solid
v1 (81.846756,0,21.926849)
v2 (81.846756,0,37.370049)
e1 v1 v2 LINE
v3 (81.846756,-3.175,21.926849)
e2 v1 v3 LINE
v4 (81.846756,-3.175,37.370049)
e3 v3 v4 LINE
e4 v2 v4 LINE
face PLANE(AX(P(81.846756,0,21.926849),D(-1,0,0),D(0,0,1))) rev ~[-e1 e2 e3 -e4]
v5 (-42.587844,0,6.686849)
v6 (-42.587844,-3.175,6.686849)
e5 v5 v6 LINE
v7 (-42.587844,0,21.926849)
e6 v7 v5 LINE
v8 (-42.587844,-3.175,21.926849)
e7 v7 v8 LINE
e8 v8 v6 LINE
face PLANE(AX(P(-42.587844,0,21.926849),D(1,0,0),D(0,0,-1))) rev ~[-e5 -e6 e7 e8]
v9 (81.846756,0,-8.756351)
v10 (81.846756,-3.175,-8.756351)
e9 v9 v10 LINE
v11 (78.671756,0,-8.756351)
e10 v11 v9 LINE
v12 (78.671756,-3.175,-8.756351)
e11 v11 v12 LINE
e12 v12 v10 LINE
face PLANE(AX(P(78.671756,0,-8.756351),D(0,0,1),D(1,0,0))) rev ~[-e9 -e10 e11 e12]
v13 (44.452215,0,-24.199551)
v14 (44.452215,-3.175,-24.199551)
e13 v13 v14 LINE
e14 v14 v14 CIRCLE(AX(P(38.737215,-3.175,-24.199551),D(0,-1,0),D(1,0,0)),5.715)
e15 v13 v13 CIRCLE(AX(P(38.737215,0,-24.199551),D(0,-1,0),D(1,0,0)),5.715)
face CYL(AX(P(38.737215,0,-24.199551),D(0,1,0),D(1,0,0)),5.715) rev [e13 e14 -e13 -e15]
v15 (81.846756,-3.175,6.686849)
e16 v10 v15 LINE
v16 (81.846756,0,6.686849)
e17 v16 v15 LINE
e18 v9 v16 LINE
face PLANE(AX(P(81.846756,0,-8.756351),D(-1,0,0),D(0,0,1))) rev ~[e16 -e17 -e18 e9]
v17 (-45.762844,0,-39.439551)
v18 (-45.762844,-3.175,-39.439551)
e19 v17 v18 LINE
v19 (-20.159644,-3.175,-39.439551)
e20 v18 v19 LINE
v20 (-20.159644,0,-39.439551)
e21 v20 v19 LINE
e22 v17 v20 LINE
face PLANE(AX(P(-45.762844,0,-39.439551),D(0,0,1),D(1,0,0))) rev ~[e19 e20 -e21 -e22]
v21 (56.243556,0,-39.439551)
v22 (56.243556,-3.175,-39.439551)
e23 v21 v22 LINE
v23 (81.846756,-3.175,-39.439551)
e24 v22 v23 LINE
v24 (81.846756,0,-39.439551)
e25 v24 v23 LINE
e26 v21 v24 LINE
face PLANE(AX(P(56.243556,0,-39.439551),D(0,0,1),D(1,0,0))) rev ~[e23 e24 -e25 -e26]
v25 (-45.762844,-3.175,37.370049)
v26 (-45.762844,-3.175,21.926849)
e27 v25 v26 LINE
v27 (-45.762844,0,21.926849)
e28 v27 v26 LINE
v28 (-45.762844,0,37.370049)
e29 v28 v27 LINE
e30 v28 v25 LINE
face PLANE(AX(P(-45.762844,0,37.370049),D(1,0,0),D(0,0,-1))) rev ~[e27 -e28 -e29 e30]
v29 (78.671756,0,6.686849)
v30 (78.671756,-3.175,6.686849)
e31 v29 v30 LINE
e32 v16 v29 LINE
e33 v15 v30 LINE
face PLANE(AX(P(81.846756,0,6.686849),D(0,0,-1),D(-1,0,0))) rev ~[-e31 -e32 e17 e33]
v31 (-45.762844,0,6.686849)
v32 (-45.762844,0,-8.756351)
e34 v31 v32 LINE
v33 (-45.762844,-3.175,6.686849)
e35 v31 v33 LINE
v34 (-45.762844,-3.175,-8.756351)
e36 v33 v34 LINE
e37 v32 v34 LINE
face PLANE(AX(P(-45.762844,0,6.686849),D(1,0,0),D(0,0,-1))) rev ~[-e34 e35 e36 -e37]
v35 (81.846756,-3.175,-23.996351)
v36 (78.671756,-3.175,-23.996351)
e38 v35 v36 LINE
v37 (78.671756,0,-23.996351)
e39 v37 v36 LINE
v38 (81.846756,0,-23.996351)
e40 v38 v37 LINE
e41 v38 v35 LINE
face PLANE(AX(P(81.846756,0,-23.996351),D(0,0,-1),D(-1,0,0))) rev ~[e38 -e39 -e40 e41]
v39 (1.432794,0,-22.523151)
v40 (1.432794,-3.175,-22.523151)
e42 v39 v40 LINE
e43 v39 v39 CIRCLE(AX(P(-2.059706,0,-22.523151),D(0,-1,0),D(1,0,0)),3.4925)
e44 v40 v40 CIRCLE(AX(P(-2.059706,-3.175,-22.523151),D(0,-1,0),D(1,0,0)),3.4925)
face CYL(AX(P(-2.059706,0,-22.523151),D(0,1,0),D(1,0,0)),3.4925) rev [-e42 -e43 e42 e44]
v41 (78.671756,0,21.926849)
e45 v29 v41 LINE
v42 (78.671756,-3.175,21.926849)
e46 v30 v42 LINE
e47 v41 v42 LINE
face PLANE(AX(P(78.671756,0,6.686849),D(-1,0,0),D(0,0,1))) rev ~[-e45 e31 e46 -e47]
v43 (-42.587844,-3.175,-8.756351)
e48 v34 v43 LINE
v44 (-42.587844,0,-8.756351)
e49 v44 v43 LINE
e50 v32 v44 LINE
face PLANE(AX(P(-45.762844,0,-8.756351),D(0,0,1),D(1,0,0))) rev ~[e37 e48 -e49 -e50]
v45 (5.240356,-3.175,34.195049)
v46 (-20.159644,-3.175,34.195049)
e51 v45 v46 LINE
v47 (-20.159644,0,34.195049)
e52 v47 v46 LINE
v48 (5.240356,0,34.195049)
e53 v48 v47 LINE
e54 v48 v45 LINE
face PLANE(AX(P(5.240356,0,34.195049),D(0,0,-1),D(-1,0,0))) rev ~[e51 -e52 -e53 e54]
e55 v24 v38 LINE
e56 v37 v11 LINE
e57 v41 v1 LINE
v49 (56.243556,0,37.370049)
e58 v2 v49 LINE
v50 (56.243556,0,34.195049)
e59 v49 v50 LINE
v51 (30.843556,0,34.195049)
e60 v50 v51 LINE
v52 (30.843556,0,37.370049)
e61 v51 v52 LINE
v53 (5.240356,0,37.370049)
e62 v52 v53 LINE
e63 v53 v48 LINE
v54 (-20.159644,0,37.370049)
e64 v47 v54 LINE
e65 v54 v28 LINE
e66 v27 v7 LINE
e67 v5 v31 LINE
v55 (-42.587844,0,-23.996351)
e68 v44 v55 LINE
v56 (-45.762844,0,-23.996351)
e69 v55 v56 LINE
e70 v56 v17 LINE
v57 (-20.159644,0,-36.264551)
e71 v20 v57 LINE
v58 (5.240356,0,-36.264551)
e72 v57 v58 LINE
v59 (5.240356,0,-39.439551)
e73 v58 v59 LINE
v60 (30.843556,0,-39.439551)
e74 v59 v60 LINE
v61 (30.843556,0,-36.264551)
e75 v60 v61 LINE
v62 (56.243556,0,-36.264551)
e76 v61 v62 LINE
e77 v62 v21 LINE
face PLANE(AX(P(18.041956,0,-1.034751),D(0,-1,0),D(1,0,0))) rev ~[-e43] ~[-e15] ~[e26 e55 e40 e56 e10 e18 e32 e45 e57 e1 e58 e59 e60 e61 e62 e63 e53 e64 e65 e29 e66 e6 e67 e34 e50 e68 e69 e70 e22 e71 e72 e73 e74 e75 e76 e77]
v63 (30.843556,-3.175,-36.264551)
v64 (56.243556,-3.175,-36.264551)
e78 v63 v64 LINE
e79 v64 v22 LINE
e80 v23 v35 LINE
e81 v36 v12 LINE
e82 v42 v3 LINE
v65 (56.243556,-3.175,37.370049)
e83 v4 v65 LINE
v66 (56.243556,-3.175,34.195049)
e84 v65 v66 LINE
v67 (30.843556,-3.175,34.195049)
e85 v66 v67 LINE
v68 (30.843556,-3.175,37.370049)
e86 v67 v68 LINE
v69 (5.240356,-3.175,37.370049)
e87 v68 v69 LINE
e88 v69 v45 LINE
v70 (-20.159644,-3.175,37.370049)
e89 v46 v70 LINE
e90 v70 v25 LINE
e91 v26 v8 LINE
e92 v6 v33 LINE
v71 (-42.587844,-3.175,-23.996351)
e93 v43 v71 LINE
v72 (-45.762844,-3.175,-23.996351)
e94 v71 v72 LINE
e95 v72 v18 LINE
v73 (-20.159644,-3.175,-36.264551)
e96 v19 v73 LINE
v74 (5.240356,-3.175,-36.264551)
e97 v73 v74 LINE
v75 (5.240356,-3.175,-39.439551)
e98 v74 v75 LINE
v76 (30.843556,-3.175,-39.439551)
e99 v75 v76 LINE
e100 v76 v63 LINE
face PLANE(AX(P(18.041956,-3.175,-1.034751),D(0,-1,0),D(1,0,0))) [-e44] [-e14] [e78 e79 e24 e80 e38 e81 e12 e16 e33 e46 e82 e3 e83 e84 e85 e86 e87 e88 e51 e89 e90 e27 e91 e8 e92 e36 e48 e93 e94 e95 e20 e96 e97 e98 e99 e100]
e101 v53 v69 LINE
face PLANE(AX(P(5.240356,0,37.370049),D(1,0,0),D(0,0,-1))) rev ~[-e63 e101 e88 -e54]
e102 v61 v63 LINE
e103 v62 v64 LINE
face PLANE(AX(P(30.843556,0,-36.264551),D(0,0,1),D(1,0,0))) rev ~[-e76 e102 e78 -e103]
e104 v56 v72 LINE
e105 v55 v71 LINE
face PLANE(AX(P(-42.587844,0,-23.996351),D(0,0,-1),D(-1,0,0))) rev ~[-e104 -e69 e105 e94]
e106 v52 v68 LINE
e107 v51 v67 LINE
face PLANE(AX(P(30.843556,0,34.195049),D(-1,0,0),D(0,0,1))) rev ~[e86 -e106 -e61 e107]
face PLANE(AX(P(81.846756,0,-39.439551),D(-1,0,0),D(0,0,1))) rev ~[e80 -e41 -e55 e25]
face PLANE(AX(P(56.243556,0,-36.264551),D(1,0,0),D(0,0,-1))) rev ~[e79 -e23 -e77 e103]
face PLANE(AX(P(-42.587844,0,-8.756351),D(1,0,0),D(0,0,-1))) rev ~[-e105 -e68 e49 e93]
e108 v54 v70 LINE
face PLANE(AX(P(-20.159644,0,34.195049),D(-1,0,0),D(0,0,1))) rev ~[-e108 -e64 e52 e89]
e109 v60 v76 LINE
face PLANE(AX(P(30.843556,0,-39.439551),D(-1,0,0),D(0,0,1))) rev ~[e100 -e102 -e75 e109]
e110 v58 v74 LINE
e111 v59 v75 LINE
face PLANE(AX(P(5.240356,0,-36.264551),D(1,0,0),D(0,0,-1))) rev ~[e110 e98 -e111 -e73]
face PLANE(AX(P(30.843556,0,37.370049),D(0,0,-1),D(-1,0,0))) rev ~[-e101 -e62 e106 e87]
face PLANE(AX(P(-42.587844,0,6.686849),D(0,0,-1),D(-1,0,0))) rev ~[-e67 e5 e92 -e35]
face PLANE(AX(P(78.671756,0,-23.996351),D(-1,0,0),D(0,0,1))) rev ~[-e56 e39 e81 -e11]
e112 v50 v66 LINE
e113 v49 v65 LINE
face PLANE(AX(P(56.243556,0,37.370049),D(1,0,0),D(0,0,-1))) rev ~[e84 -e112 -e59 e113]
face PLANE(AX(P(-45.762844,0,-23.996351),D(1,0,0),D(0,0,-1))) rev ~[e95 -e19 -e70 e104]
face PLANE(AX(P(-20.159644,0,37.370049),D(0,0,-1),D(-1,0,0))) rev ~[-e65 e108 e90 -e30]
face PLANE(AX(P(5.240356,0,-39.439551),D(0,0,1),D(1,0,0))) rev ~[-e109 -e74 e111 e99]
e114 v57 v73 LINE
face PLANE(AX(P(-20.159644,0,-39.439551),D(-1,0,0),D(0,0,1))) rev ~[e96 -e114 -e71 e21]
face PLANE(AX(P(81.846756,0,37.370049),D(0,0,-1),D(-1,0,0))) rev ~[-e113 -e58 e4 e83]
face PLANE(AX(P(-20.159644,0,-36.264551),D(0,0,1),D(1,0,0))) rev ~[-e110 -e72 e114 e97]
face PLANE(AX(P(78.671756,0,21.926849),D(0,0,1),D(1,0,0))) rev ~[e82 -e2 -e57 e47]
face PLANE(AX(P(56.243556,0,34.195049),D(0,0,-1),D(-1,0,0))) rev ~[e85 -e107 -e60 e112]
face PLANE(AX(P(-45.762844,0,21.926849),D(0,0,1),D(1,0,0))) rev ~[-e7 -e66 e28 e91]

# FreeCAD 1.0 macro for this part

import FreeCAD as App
import Part
import Sketcher
Q = App.Units.Quantity

doc = App.newDocument("Part")
body = doc.addObject("PartDesign::Body", "Body")

# Sketch on XZ plane
sketch1 = body.newObject("Sketcher::SketchObject", "Sketch")
sketch1.AttachmentSupport = (doc.getObject("XZ_Plane"), [""])
sketch1.MapMode = "FlatFace"
sketch1.addGeometry([
    Part.LineSegment(App.Vector(-20.2, 37.4, 0), App.Vector(-45.8, 37.4, 0)),  # 0
    Part.LineSegment(App.Vector(-45.8, 37.4, 0), App.Vector(-45.8, 21.9, 0)),  # 1
    Part.LineSegment(App.Vector(-45.8, 21.9, 0), App.Vector(-42.6, 21.9, 0)),  # 2
    Part.LineSegment(App.Vector(-42.6, 21.9, 0), App.Vector(-42.6, 6.7, 0)),  # 3
    Part.LineSegment(App.Vector(-42.6, 6.7, 0), App.Vector(-45.8, 6.7, 0)),  # 4
    Part.LineSegment(App.Vector(-45.8, 6.7, 0), App.Vector(-45.8, -8.8, 0)),  # 5
    Part.LineSegment(App.Vector(-45.8, -8.8, 0), App.Vector(-42.6, -8.8, 0)),  # 6
    Part.LineSegment(App.Vector(-42.6, -8.8, 0), App.Vector(-42.6, -24, 0)),  # 7
    Part.LineSegment(App.Vector(-42.6, -24, 0), App.Vector(-45.8, -24, 0)),  # 8
    Part.LineSegment(App.Vector(-45.8, -24, 0), App.Vector(-45.8, -39.4, 0)),  # 9
    Part.LineSegment(App.Vector(-45.8, -39.4, 0), App.Vector(-20.2, -39.4, 0)),  # 10
    Part.LineSegment(App.Vector(-20.2, -39.4, 0), App.Vector(-20.2, -36.3, 0)),  # 11
    Part.LineSegment(App.Vector(-20.2, -36.3, 0), App.Vector(5.2, -36.3, 0)),  # 12
    Part.LineSegment(App.Vector(5.2, -36.3, 0), App.Vector(5.2, -39.4, 0)),  # 13
    Part.LineSegment(App.Vector(5.2, -39.4, 0), App.Vector(30.8, -39.4, 0)),  # 14
    Part.LineSegment(App.Vector(30.8, -39.4, 0), App.Vector(30.8, -36.3, 0)),  # 15
    Part.LineSegment(App.Vector(30.8, -36.3, 0), App.Vector(56.2, -36.3, 0)),  # 16
    Part.LineSegment(App.Vector(56.2, -36.3, 0), App.Vector(56.2, -39.4, 0)),  # 17
    Part.LineSegment(App.Vector(56.2, -39.4, 0), App.Vector(81.8, -39.4, 0)),  # 18
    Part.LineSegment(App.Vector(81.8, -39.4, 0), App.Vector(81.8, -24, 0)),  # 19
    Part.LineSegment(App.Vector(81.8, -24, 0), App.Vector(78.7, -24, 0)),  # 20
    Part.LineSegment(App.Vector(78.7, -24, 0), App.Vector(78.7, -8.8, 0)),  # 21
    Part.LineSegment(App.Vector(78.7, -8.8, 0), App.Vector(81.8, -8.8, 0)),  # 22
    Part.LineSegment(App.Vector(81.8, -8.8, 0), App.Vector(81.8, 6.7, 0)),  # 23
    Part.LineSegment(App.Vector(81.8, 6.7, 0), App.Vector(78.7, 6.7, 0)),  # 24
    Part.LineSegment(App.Vector(78.7, 6.7, 0), App.Vector(78.7, 21.9, 0)),  # 25
    Part.LineSegment(App.Vector(78.7, 21.9, 0), App.Vector(81.8, 21.9, 0)),  # 26
    Part.LineSegment(App.Vector(81.8, 21.9, 0), App.Vector(81.8, 37.4, 0)),  # 27
    Part.LineSegment(App.Vector(81.8, 37.4, 0), App.Vector(56.2, 37.4, 0)),  # 28
    Part.LineSegment(App.Vector(56.2, 37.4, 0), App.Vector(56.2, 34.2, 0)),  # 29
    Part.LineSegment(App.Vector(56.2, 34.2, 0), App.Vector(30.8, 34.2, 0)),  # 30
    Part.LineSegment(App.Vector(30.8, 34.2, 0), App.Vector(30.8, 37.4, 0)),  # 31
    Part.LineSegment(App.Vector(30.8, 37.4, 0), App.Vector(5.2, 37.4, 0)),  # 32
    Part.LineSegment(App.Vector(5.2, 37.4, 0), App.Vector(5.2, 34.2, 0)),  # 33
    Part.LineSegment(App.Vector(5.2, 34.2, 0), App.Vector(-20.2, 34.2, 0)),  # 34
    Part.LineSegment(App.Vector(-20.2, 34.2, 0), App.Vector(-20.2, 37.4, 0)),  # 35
    Part.Circle(App.Vector(38.7, -24.2, 0), App.Vector(0, 0, 1), 5.7),  # 36
    Part.Circle(App.Vector(-2.1, -22.5, 0), App.Vector(0, 0, 1), 3.5),  # 37
], False)
sketch1.addConstraint([
    Sketcher.Constraint("Coincident", 0, 2, 1, 1),
    Sketcher.Constraint("Coincident", 1, 2, 2, 1),
    Sketcher.Constraint("Coincident", 2, 2, 3, 1),
    Sketcher.Constraint("Coincident", 3, 2, 4, 1),
    Sketcher.Constraint("Coincident", 4, 2, 5, 1),
    Sketcher.Constraint("Coincident", 5, 2, 6, 1),
    Sketcher.Constraint("Coincident", 6, 2, 7, 1),
    Sketcher.Constraint("Coincident", 7, 2, 8, 1),
    Sketcher.Constraint("Coincident", 8, 2, 9, 1),
    Sketcher.Constraint("Coincident", 9, 2, 10, 1),
    Sketcher.Constraint("Coincident", 10, 2, 11, 1),
    Sketcher.Constraint("Coincident", 11, 2, 12, 1),
    Sketcher.Constraint("Coincident", 12, 2, 13, 1),
    Sketcher.Constraint("Coincident", 13, 2, 14, 1),
    Sketcher.Constraint("Coincident", 14, 2, 15, 1),
    Sketcher.Constraint("Coincident", 15, 2, 16, 1),
    Sketcher.Constraint("Coincident", 16, 2, 17, 1),
    Sketcher.Constraint("Coincident", 17, 2, 18, 1),
    Sketcher.Constraint("Coincident", 18, 2, 19, 1),
    Sketcher.Constraint("Coincident", 19, 2, 20, 1),
    Sketcher.Constraint("Coincident", 20, 2, 21, 1),
    Sketcher.Constraint("Coincident", 21, 2, 22, 1),
    Sketcher.Constraint("Coincident", 22, 2, 23, 1),
    Sketcher.Constraint("Coincident", 23, 2, 24, 1),
    Sketcher.Constraint("Coincident", 24, 2, 25, 1),
    Sketcher.Constraint("Coincident", 25, 2, 26, 1),
    Sketcher.Constraint("Coincident", 26, 2, 27, 1),
    Sketcher.Constraint("Coincident", 27, 2, 28, 1),
    Sketcher.Constraint("Coincident", 28, 2, 29, 1),
    Sketcher.Constraint("Coincident", 29, 2, 30, 1),
    Sketcher.Constraint("Coincident", 30, 2, 31, 1),
    Sketcher.Constraint("Coincident", 31, 2, 32, 1),
    Sketcher.Constraint("Coincident", 32, 2, 33, 1),
    Sketcher.Constraint("Coincident", 33, 2, 34, 1),
    Sketcher.Constraint("Coincident", 34, 2, 35, 1),
    Sketcher.Constraint("Coincident", 35, 2, 0, 1),
    Sketcher.Constraint("Horizontal", 0),
    Sketcher.Constraint("Vertical", 1),
    Sketcher.Constraint("Horizontal", 2),
    Sketcher.Constraint("Vertical", 3),
    Sketcher.Constraint("Horizontal", 4),
    Sketcher.Constraint("Vertical", 5),
    Sketcher.Constraint("Horizontal", 6),
    Sketcher.Constraint("Vertical", 7),
    Sketcher.Constraint("Horizontal", 8),
    Sketcher.Constraint("Vertical", 9),
    Sketcher.Constraint("Horizontal", 10),
    Sketcher.Constraint("Vertical", 11),
    Sketcher.Constraint("Horizontal", 12),
    Sketcher.Constraint("Vertical", 13),
    Sketcher.Constraint("Horizontal", 14),
    Sketcher.Constraint("Vertical", 15),
    Sketcher.Constraint("Horizontal", 16),
    Sketcher.Constraint("Vertical", 17),
    Sketcher.Constraint("Horizontal", 18),
    Sketcher.Constraint("Vertical", 19),
    Sketcher.Constraint("Horizontal", 20),
    Sketcher.Constraint("Vertical", 21),
    Sketcher.Constraint("Horizontal", 22),
    Sketcher.Constraint("Vertical", 23),
    Sketcher.Constraint("Horizontal", 24),
    Sketcher.Constraint("Vertical", 25),
    Sketcher.Constraint("Horizontal", 26),
    Sketcher.Constraint("Vertical", 27),
    Sketcher.Constraint("Horizontal", 28),
    Sketcher.Constraint("Vertical", 29),
    Sketcher.Constraint("Horizontal", 30),
    Sketcher.Constraint("Vertical", 31),
    Sketcher.Constraint("Horizontal", 32),
    Sketcher.Constraint("Vertical", 33),
    Sketcher.Constraint("Horizontal", 34),
    Sketcher.Constraint("Vertical", 35),
    Sketcher.Constraint("Horizontal", 10, 2, 13, 2),
    Sketcher.Constraint("Horizontal", 12, 2, 15, 2),
    Sketcher.Constraint("Horizontal", 14, 2, 17, 2),
    Sketcher.Constraint("Horizontal", 8, 2, 19, 2),
    Sketcher.Constraint("Horizontal", 6, 2, 21, 2),
    Sketcher.Constraint("Horizontal", 4, 2, 23, 2),
    Sketcher.Constraint("Horizontal", 2, 2, 25, 2),
    Sketcher.Constraint("Horizontal", 0, 2, 27, 2),
    Sketcher.Constraint("Horizontal", 28, 2, 31, 2),
    Sketcher.Constraint("Horizontal", 30, 2, 33, 2),
    Sketcher.Constraint("Vertical", 1, 2, 4, 2),
    Sketcher.Constraint("Vertical", 3, 2, 6, 2),
    Sketcher.Constraint("Vertical", 5, 2, 8, 2),
    Sketcher.Constraint("Vertical", 19, 2, 22, 2),
    Sketcher.Constraint("Vertical", 21, 2, 24, 2),
    Sketcher.Constraint("Vertical", 23, 2, 26, 2),
    Sketcher.Constraint("Vertical", 17, 2, 28, 2),
    Sketcher.Constraint("Vertical", 15, 2, 30, 2),
    Sketcher.Constraint("Vertical", 13, 2, 32, 2),
    Sketcher.Constraint("Vertical", 11, 2, 34, 2),
    Sketcher.Constraint("Equal", 10, 14),
    Sketcher.Constraint("Equal", 12, 16),
    Sketcher.Constraint("Equal", 14, 18),
    Sketcher.Constraint("Equal", 8, 20),
    Sketcher.Constraint("Equal", 1, 5),
    Sketcher.Constraint("Equal", 3, 7),
    Sketcher.Constraint("Equal", 5, 9),
    Sketcher.Constraint("Equal", 26, 11),
    Sketcher.Constraint("Equal", 17, 29),
    Sketcher.Constraint("Diameter", 36, Q("0.45 in")),
    Sketcher.Constraint("DistanceX", 12, 1, 12, 2, Q("1 in")),
    Sketcher.Constraint("Diameter", 37, Q("0.275 in")),
    Sketcher.Constraint("DistanceY", 3, 2, 3, 1, Q("0.6 in")),
    Sketcher.Constraint("DistanceY", 13, 2, 36, 3, Q("0.6 in")),
    Sketcher.Constraint("DistanceX", 0, 2, 0, 1, Q("1.008 in")),
    Sketcher.Constraint("DistanceX", 2, 1, 2, 2, Q("0.125 in")),
    Sketcher.Constraint("DistanceY", 1, 2, 1, 1, Q("0.608 in")),
    Sketcher.Constraint("DistanceY", 37, 3, 1, 2, Q("1.75 in")),
    Sketcher.Constraint("DistanceY", 36, 3, -1, 1, Q("24.199551 mm")),
    Sketcher.Constraint("DistanceX", 37, 3, 36, 3, Q("40.796921 mm")),
    Sketcher.Constraint("DistanceX", 0, 2, 37, 3, Q("43.703138 mm")),
    Sketcher.Constraint("DistanceX", -1, 1, 36, 3, Q("38.737215 mm")),
])
pad1 = body.newObject("PartDesign::Pad", "Pad")
pad1.Profile = sketch1
pad1.Length = Q("0.125 in")

doc.recompute()
